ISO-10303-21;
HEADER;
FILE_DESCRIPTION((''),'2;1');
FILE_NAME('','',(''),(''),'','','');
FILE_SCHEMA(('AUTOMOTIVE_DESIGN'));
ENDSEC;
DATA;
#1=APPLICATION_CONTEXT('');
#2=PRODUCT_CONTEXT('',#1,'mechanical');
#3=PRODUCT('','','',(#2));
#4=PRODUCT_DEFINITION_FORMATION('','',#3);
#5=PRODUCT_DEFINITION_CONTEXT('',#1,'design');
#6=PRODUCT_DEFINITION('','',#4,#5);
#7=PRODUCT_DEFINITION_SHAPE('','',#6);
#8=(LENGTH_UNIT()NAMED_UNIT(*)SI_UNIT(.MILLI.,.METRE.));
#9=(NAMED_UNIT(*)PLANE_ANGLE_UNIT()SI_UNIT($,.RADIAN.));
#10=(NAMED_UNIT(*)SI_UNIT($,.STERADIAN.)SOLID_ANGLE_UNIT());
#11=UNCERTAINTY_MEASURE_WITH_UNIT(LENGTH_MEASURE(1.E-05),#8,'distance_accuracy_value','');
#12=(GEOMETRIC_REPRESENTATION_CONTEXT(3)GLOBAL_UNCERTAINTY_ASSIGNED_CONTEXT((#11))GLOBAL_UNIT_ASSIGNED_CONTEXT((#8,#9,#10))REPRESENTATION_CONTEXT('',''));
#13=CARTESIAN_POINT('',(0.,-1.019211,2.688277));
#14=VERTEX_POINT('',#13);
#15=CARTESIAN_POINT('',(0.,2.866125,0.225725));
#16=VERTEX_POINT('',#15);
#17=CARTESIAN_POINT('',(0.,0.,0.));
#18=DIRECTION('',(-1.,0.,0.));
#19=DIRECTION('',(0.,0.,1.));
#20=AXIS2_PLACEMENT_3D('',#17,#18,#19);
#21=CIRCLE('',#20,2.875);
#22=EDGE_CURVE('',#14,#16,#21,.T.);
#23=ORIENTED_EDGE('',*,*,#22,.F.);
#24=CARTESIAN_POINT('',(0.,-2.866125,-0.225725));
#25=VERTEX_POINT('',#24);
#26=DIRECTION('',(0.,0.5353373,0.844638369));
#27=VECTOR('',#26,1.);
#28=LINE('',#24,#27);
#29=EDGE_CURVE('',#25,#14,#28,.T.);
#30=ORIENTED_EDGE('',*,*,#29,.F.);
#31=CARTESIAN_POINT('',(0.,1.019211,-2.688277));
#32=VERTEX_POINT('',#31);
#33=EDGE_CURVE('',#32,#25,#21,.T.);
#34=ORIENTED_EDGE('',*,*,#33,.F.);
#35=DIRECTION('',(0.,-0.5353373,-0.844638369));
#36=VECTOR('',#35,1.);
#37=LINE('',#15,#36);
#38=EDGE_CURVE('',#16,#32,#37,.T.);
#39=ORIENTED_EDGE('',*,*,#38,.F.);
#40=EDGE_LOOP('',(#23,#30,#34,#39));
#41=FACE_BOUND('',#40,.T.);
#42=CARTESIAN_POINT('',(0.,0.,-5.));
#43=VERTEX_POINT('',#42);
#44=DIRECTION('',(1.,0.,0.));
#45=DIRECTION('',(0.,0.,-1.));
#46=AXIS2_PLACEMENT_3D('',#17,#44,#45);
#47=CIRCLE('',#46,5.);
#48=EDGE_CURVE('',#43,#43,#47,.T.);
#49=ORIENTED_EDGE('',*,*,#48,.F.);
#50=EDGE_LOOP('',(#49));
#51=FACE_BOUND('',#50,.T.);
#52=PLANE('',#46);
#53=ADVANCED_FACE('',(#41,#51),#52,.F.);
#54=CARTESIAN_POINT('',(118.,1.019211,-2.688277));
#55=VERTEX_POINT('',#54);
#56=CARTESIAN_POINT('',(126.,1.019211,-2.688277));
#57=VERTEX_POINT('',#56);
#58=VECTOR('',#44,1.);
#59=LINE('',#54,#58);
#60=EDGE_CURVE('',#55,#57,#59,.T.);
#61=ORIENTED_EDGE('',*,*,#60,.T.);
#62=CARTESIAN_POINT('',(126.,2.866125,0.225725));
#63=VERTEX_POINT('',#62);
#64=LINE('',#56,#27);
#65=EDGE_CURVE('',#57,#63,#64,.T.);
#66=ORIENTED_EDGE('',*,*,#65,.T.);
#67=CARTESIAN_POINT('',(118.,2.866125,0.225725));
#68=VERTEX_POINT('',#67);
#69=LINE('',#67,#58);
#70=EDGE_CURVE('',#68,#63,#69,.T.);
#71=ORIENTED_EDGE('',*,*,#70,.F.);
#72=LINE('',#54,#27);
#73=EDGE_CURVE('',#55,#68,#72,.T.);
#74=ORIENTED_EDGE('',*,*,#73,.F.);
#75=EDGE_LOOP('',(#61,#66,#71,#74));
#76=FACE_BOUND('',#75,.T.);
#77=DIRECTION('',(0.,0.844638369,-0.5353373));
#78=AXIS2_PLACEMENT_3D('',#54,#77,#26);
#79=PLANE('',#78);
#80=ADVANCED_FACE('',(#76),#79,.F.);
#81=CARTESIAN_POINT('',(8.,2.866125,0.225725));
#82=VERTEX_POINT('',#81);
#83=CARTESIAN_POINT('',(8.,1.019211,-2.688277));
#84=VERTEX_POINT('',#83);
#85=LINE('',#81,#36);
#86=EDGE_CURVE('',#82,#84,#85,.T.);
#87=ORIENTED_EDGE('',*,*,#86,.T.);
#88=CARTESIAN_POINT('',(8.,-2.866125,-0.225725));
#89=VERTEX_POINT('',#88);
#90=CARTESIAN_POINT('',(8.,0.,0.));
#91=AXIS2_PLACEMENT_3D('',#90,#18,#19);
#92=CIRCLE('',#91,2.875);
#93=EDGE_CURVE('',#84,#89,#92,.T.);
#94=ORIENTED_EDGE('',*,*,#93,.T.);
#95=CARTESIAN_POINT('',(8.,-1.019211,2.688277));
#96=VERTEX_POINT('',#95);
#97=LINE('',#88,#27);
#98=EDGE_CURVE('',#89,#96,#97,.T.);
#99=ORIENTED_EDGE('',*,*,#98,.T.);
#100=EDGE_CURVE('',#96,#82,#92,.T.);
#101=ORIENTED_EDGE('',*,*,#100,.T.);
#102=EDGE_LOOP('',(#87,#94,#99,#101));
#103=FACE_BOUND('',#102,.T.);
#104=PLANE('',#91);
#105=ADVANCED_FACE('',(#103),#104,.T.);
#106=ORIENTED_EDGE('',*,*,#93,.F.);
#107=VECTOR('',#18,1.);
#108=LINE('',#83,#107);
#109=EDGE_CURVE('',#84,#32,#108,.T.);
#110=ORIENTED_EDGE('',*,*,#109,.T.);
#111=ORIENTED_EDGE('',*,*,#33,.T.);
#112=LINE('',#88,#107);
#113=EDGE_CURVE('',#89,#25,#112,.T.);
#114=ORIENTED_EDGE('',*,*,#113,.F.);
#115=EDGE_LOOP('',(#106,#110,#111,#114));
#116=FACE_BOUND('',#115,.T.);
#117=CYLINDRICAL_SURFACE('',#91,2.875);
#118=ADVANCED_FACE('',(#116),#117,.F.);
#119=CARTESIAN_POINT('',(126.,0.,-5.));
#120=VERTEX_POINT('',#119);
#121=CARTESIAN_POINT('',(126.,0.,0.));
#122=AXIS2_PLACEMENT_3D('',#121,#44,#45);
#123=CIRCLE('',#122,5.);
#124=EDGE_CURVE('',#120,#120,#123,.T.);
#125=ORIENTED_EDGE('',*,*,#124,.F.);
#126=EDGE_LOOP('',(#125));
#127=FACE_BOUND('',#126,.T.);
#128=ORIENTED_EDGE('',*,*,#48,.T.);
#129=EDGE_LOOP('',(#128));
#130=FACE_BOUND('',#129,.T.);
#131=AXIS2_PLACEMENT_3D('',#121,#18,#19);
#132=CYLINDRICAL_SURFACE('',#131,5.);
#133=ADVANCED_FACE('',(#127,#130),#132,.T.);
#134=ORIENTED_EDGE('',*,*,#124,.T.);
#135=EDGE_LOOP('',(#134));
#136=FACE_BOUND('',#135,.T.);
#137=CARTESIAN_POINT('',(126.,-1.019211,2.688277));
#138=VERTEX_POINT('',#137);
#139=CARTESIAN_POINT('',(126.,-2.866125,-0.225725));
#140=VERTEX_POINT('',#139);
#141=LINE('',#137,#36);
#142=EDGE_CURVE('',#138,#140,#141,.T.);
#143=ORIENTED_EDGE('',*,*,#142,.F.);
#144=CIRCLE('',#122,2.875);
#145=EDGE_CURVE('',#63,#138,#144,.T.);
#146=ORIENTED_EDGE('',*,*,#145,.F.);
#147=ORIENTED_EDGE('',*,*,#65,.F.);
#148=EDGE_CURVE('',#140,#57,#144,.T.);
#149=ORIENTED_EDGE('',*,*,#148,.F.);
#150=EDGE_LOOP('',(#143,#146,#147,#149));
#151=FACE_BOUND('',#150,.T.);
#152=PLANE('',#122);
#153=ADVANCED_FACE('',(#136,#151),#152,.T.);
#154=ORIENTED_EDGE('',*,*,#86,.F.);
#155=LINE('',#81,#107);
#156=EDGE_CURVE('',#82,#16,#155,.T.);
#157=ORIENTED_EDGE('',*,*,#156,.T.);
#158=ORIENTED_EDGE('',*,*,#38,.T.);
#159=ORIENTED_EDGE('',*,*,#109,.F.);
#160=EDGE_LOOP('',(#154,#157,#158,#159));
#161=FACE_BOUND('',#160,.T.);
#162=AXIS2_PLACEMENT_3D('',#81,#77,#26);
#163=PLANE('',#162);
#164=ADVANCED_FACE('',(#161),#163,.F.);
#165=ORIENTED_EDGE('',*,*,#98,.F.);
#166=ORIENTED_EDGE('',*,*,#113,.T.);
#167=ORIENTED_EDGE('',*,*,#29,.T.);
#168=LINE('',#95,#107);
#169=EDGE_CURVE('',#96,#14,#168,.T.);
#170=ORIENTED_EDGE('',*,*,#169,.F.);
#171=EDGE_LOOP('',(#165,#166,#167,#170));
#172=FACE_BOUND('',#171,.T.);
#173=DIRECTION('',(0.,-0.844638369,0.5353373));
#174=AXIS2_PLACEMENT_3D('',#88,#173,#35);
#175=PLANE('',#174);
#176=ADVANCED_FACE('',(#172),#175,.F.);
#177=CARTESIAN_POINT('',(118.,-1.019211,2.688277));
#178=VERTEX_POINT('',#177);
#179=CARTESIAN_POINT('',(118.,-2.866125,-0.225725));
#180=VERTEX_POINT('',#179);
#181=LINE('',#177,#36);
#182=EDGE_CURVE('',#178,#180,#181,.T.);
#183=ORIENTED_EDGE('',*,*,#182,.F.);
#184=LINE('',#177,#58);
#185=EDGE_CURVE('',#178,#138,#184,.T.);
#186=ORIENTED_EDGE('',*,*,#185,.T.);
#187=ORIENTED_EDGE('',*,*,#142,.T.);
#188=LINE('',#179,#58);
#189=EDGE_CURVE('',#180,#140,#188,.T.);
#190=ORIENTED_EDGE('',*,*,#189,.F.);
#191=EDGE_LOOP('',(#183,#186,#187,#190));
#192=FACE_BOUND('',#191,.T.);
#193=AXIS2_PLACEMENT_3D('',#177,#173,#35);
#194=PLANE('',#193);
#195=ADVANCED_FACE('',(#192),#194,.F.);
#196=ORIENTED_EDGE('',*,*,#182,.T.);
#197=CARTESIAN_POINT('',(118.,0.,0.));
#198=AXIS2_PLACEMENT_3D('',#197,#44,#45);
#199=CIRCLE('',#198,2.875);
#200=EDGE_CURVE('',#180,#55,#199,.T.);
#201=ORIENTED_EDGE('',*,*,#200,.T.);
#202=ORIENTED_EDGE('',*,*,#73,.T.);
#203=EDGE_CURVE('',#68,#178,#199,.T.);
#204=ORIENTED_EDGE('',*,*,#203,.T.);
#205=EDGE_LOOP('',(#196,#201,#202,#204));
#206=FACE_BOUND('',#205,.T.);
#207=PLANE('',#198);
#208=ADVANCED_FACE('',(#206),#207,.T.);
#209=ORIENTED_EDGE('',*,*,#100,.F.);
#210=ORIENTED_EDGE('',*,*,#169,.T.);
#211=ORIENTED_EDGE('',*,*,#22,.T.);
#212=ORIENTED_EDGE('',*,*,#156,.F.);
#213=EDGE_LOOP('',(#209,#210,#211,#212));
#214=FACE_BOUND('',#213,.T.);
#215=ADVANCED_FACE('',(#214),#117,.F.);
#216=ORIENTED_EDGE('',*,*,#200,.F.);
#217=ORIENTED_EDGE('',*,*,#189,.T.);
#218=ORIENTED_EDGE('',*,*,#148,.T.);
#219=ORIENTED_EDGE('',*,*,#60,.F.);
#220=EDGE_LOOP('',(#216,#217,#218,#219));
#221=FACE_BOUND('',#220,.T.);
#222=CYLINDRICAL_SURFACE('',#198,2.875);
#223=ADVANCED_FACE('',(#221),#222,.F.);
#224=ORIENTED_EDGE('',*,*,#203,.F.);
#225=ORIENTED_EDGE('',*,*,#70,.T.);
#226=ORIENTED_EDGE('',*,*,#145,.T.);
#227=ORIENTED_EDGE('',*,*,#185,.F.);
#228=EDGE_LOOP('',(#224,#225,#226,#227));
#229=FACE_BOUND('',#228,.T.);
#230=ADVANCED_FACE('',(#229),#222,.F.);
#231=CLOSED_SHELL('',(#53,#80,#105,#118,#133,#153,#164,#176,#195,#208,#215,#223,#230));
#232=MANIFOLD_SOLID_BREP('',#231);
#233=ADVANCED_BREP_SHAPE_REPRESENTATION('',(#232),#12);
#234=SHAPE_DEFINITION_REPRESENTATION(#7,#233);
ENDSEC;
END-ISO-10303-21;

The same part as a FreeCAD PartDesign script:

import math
import FreeCAD as App
import Part
import Sketcher
from FreeCAD import Vector
Q = App.Units.Quantity

doc = App.newDocument("Part")
body = doc.addObject("PartDesign::Body", "Body")

sketch1 = doc.addObject("Sketcher::SketchObject", "Sketch")
body.addObject(sketch1)
sketch1.AttachmentSupport = (doc.YZ_Plane, [""])
sketch1.MapMode = "FlatFace"
sketch1.addGeometry(Part.Circle(Vector(0, 0, 0), Vector(0, 0, 1), 5), False)
sketch1.addConstraint([
    Sketcher.Constraint("Coincident", 0, 3, -1, 1),
    Sketcher.Constraint("Diameter", 0, Q("10 mm")),
])
pad1 = doc.addObject("PartDesign::Pad", "Pad")
body.addObject(pad1)
pad1.Profile = sketch1
pad1.Length = 126

sketch2 = doc.addObject("Sketcher::SketchObject", "Sketch001")
body.addObject(sketch2)
sketch2.AttachmentSupport = (doc.YZ_Plane, [""])
sketch2.MapMode = "FlatFace"
sketch2.AttachmentOffset = App.Placement(Vector(0, 0, 126), App.Rotation())
sketch2.addGeometry([
    Part.LineSegment(Vector(-1, 2.7, 0), Vector(-2.9, -0.2, 0)),
    Part.ArcOfCircle(Part.Circle(Vector(0, 0, 0), Vector(0, 0, 1), 2.9), math.radians(-175), math.radians(-69)),
    Part.LineSegment(Vector(1, -2.7, 0), Vector(2.9, 0.2, 0)),
    Part.ArcOfCircle(Part.Circle(Vector(0, 0, 0), Vector(0, 0, 1), 2.9), math.radians(5), math.radians(111)),
], False)
sketch2.addConstraint([
    Sketcher.Constraint("Coincident", 0, 2, 1, 1),
    Sketcher.Constraint("Coincident", 1, 2, 2, 1),
    Sketcher.Constraint("Coincident", 2, 2, 3, 1),
    Sketcher.Constraint("Coincident", 3, 2, 0, 1),
    Sketcher.Constraint("Coincident", 1, 3, -1, 1),
    Sketcher.Constraint("Coincident", 3, 3, -1, 1),
    Sketcher.Constraint("Equal", 1, 3),
    Sketcher.Constraint("Parallel", 0, 2),
    Sketcher.Constraint("Equal", 0, 2),
    Sketcher.Constraint("Radius", 1, Q("2.875 mm")),
    Sketcher.Constraint("Distance", 0, Q("3.45 mm")),
    Sketcher.Constraint("DistanceX", -1, 1, 1, 2, Q("1.019211 mm")),
])
pocket1 = doc.addObject("PartDesign::Pocket", "Pocket")
body.addObject(pocket1)
pocket1.Profile = sketch2
pocket1.Length = 8

sketch3 = doc.addObject("Sketcher::SketchObject", "Sketch002")
body.addObject(sketch3)
sketch3.AttachmentSupport = (doc.YZ_Plane, [""])
sketch3.MapMode = "FlatFace"
sketch3.AttachmentOffset = App.Placement(Vector(0, 0, 8), App.Rotation())
sketch3.addGeometry([
    Part.LineSegment(Vector(2.9, 0.2, 0), Vector(1, -2.7, 0)),
    Part.ArcOfCircle(Part.Circle(Vector(0, 0, 0), Vector(0, 0, 1), 2.9), math.radians(-175), math.radians(-69)),
    Part.LineSegment(Vector(-2.9, -0.2, 0), Vector(-1, 2.7, 0)),
    Part.ArcOfCircle(Part.Circle(Vector(0, 0, 0), Vector(0, 0, 1), 2.9), math.radians(5), math.radians(111)),
], False)
sketch3.addConstraint([
    Sketcher.Constraint("Coincident", 0, 2, 1, 2),
    Sketcher.Constraint("Coincident", 1, 1, 2, 1),
    Sketcher.Constraint("Coincident", 2, 2, 3, 2),
    Sketcher.Constraint("Coincident", 3, 1, 0, 1),
    Sketcher.Constraint("Coincident", 1, 3, -1, 1),
    Sketcher.Constraint("Coincident", 3, 3, -1, 1),
    Sketcher.Constraint("Equal", 1, 3),
    Sketcher.Constraint("Parallel", 0, 2),
    Sketcher.Constraint("Equal", 0, 2),
    Sketcher.Constraint("Radius", 1, Q("2.875 mm")),
    Sketcher.Constraint("Distance", 0, Q("3.45 mm")),
    Sketcher.Constraint("DistanceX", -1, 1, 0, 2, Q("1.019211 mm")),
])
pocket2 = doc.addObject("PartDesign::Pocket", "Pocket001")
body.addObject(pocket2)
pocket2.Profile = sketch3
pocket2.Length = 8

doc.recompute()
